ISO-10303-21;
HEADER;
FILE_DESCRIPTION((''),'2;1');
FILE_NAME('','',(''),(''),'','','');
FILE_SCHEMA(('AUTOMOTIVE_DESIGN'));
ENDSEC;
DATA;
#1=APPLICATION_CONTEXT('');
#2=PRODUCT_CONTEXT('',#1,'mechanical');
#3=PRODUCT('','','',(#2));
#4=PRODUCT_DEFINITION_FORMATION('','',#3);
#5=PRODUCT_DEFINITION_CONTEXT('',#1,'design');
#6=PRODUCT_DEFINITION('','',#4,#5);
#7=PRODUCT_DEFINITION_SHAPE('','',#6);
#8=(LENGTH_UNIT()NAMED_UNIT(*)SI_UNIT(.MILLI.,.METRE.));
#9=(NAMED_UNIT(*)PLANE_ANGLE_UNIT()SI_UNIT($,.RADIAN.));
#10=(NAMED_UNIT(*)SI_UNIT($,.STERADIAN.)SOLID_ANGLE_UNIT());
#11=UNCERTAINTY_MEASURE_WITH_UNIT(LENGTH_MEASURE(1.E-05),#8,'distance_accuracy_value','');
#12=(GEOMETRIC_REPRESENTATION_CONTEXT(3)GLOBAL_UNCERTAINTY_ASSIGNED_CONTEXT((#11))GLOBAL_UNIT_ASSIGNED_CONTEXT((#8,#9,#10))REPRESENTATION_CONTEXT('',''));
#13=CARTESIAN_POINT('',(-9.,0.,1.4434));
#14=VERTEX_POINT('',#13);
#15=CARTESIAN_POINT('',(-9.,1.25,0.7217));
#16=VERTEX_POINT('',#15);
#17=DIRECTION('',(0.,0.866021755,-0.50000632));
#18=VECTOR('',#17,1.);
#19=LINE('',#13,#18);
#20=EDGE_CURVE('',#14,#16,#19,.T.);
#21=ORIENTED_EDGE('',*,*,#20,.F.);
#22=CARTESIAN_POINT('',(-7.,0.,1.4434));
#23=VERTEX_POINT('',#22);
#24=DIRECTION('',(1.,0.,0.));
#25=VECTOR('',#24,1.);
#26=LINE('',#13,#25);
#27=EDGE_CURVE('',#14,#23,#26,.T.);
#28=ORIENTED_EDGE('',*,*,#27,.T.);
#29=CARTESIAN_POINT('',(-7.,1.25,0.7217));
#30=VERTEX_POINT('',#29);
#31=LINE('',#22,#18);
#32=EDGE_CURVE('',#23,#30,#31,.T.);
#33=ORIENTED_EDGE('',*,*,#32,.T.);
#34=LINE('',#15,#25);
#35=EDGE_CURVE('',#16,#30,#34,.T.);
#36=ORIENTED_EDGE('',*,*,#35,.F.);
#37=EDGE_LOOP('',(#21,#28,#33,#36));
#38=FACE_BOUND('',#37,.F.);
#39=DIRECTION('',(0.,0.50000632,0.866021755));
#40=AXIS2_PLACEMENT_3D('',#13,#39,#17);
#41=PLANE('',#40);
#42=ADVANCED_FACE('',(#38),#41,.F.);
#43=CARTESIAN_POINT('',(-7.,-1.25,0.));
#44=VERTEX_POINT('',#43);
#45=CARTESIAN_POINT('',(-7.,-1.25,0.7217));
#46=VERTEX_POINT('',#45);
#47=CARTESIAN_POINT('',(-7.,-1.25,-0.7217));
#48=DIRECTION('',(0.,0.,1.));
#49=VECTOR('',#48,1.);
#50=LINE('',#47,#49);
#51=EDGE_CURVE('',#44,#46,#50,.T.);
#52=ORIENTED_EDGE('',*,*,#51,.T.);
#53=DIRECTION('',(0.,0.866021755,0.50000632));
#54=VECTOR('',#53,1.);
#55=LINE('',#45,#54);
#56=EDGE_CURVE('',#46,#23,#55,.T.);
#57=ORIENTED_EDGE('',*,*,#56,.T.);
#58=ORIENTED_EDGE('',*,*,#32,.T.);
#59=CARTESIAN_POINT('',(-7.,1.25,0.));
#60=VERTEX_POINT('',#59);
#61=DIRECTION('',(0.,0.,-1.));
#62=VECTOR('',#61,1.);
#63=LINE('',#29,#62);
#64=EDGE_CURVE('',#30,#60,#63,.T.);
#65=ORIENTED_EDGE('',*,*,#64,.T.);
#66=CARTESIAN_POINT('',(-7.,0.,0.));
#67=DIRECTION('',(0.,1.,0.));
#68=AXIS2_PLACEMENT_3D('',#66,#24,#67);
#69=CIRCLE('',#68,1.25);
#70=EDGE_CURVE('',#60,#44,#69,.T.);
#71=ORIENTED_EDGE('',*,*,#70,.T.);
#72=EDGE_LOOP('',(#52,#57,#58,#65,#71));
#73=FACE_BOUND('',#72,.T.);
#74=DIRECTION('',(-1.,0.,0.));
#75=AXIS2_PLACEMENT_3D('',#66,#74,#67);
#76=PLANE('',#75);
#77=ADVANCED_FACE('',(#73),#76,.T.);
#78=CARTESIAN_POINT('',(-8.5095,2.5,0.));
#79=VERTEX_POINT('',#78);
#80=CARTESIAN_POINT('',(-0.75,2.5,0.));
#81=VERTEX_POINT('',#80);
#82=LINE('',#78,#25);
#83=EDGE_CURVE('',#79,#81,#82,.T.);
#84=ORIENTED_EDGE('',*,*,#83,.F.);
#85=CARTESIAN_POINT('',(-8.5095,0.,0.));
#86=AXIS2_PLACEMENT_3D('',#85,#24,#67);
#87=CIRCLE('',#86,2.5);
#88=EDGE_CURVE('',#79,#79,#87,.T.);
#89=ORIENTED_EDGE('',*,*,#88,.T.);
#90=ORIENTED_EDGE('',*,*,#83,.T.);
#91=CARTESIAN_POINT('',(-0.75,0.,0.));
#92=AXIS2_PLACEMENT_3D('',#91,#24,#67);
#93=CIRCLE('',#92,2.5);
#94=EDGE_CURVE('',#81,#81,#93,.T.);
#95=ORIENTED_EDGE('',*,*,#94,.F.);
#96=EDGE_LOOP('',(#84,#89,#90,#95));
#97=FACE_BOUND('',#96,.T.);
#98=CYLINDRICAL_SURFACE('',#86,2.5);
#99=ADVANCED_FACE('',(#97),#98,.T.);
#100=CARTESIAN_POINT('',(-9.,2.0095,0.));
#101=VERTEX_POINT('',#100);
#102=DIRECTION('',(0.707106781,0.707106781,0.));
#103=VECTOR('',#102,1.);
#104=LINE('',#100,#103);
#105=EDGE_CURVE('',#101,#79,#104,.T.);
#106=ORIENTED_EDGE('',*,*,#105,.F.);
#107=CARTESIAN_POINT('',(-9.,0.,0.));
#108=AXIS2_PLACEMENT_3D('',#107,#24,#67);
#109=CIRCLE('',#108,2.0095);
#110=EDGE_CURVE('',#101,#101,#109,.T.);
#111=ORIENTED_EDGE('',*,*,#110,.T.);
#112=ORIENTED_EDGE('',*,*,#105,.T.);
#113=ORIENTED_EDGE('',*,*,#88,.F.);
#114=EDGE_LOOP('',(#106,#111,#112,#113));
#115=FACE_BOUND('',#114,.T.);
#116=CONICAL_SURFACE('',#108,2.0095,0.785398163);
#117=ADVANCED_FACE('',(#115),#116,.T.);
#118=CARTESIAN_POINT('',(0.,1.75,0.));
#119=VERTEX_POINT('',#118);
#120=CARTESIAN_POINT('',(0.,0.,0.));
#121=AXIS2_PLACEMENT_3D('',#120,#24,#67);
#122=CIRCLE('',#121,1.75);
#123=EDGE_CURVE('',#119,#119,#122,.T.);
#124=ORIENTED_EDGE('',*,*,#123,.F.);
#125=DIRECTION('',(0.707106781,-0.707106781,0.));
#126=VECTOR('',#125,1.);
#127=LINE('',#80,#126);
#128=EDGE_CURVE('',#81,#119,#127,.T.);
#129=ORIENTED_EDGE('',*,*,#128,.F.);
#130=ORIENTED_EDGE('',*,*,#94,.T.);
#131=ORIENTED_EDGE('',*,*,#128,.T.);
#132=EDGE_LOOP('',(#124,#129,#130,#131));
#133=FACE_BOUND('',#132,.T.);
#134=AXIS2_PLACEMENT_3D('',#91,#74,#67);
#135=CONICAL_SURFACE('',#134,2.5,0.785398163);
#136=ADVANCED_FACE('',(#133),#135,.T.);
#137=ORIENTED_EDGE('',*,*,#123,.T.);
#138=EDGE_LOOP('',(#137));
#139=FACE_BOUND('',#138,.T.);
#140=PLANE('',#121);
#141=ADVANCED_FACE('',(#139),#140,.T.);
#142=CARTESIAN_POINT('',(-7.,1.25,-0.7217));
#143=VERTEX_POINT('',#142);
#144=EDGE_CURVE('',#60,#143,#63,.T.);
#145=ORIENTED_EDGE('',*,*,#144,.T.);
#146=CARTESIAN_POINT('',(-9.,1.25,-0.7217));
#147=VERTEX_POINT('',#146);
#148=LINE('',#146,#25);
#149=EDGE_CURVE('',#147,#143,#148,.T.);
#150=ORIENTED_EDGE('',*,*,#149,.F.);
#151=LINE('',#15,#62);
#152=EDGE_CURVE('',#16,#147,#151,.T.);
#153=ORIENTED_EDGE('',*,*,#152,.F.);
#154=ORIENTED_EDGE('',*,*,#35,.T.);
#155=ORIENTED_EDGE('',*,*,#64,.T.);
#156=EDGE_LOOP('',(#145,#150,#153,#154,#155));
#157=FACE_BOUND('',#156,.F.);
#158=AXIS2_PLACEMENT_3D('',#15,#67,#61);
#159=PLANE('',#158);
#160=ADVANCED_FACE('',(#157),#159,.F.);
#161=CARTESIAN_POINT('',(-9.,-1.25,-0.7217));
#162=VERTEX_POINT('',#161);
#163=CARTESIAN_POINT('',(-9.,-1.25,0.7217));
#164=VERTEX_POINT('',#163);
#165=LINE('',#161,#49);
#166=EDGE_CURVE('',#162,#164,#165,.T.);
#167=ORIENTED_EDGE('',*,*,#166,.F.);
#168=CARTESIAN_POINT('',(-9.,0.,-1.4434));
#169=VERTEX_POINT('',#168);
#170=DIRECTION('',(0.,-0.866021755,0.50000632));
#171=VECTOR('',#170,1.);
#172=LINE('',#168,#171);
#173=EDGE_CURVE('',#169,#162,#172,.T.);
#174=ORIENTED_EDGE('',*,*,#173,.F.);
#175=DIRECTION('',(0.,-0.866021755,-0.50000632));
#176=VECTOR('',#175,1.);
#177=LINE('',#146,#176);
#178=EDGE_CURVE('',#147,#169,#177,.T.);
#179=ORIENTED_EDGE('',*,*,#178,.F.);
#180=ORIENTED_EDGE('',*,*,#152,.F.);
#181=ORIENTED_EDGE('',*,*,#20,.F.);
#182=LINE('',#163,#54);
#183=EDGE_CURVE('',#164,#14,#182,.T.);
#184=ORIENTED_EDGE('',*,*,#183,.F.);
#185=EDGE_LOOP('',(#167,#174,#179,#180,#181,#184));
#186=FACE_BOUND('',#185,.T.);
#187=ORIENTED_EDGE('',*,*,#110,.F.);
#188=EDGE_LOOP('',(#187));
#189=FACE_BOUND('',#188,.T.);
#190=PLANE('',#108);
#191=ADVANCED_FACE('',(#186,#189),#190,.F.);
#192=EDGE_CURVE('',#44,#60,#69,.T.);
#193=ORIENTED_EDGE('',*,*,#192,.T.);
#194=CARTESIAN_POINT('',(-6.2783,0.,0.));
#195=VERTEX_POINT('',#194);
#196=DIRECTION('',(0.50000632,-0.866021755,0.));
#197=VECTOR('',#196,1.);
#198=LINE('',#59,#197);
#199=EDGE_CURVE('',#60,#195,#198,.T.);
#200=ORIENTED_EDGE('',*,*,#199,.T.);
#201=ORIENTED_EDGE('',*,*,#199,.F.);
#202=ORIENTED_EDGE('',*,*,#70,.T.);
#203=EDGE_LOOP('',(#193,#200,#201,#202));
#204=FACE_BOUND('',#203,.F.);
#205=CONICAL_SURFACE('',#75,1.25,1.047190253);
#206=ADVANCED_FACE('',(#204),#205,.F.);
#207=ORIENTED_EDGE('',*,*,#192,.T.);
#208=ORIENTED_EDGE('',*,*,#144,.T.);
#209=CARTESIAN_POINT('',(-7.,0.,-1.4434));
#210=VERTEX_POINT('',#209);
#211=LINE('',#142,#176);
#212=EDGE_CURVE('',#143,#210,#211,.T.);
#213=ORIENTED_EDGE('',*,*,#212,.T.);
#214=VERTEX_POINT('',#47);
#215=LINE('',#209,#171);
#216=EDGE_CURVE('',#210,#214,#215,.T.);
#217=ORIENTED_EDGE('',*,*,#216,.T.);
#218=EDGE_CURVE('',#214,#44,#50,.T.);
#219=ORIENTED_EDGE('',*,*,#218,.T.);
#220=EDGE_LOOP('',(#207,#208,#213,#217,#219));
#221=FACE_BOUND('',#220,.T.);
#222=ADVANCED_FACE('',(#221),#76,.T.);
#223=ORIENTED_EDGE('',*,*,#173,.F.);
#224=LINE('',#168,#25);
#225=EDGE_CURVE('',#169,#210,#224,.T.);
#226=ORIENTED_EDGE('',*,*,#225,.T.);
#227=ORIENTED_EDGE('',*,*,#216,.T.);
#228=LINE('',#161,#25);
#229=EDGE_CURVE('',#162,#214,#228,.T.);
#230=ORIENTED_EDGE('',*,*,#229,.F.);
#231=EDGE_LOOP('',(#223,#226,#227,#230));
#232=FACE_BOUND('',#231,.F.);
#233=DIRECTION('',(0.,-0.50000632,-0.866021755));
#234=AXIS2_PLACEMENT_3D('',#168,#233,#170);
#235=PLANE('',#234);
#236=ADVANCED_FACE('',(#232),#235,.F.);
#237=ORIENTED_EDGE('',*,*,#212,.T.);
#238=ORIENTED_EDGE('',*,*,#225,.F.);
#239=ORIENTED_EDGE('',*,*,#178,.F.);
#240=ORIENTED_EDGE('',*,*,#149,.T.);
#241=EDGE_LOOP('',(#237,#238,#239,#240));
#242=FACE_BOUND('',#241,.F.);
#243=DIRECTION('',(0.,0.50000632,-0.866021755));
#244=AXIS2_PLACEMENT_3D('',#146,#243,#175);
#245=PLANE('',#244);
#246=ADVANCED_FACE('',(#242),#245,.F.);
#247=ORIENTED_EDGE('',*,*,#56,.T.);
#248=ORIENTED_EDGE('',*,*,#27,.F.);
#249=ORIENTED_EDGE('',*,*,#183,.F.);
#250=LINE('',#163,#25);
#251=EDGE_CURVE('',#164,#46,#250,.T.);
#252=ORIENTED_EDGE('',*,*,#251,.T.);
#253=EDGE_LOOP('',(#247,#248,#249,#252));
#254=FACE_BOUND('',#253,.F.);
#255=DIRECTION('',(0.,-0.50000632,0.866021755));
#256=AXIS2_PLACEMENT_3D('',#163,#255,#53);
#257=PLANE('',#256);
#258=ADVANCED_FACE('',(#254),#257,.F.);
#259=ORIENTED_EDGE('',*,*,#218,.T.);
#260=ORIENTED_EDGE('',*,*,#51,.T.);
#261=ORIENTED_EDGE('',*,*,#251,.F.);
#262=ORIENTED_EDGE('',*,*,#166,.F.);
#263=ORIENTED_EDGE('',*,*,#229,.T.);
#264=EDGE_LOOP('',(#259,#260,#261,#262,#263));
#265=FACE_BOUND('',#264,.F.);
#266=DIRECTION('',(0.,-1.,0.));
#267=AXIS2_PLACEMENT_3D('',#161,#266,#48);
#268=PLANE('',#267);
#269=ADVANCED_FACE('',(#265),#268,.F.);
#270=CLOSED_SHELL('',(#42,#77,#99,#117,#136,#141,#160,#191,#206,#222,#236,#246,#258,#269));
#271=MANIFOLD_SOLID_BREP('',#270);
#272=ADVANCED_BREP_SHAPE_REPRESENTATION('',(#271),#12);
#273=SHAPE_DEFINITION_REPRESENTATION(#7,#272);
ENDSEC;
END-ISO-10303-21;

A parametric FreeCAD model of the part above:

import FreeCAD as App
import Part
import Sketcher
from FreeCAD import Vector
Q = App.Units.Quantity

doc = App.newDocument("Part")
body = doc.addObject("PartDesign::Body", "Body")

sketch1 = body.newObject("Sketcher::SketchObject", "Sketch")
sketch1.AttachmentSupport = (doc.getObject("XY_Plane"), [""])
sketch1.MapMode = "FlatFace"
sketch1.addGeometry(Part.LineSegment(Vector(-9, 0, 0), Vector(0, 0, 0)), False)
sketch1.addGeometry(Part.LineSegment(Vector(0, 0, 0), Vector(0, 1.75, 0)), False)
sketch1.addGeometry(Part.LineSegment(Vector(0, 1.75, 0), Vector(-0.75, 2.5, 0)), False)
sketch1.addGeometry(Part.LineSegment(Vector(-0.75, 2.5, 0), Vector(-8.5095, 2.5, 0)), False)
sketch1.addGeometry(Part.LineSegment(Vector(-8.5095, 2.5, 0), Vector(-9, 2.0095, 0)), False)
sketch1.addGeometry(Part.LineSegment(Vector(-9, 2.0095, 0), Vector(-9, 0, 0)), False)
sketch1.addConstraint(Sketcher.Constraint("Coincident", 0, 2, 1, 1))
sketch1.addConstraint(Sketcher.Constraint("Coincident", 1, 2, 2, 1))
sketch1.addConstraint(Sketcher.Constraint("Coincident", 2, 2, 3, 1))
sketch1.addConstraint(Sketcher.Constraint("Coincident", 3, 2, 4, 1))
sketch1.addConstraint(Sketcher.Constraint("Coincident", 4, 2, 5, 1))
sketch1.addConstraint(Sketcher.Constraint("Coincident", 5, 2, 0, 1))
sketch1.addConstraint(Sketcher.Constraint("Horizontal", 0))
sketch1.addConstraint(Sketcher.Constraint("Vertical", 1))
sketch1.addConstraint(Sketcher.Constraint("Horizontal", 3))
sketch1.addConstraint(Sketcher.Constraint("Vertical", 5))
sketch1.addConstraint(Sketcher.Constraint("Coincident", 0, 2, -1, 1))
sketch1.addConstraint(Sketcher.Constraint("Perpendicular", 2, 4))
sketch1.addConstraint(Sketcher.Constraint("DistanceX", 0, 1, 0, 2, 9.0))
sketch1.addConstraint(Sketcher.Constraint("Angle", 2, Q("135 deg")))
sketch1.addConstraint(Sketcher.Constraint("DistanceY", 1, 1, 1, 2, 1.75))
sketch1.addConstraint(Sketcher.Constraint("DistanceY", -1, 1, 2, 2, 2.5))
sketch1.addConstraint(Sketcher.Constraint("DistanceX", 3, 2, 3, 1, 7.7595))
revolution = body.newObject("PartDesign::Revolution", "Revolution")
revolution.Profile = sketch1
revolution.ReferenceAxis = (sketch1, ["H_Axis"])
revolution.Angle = 360

sketch2 = body.newObject("Sketcher::SketchObject", "Sketch001")
sketch2.AttachmentSupport = (doc.getObject("YZ_Plane"), [""])
sketch2.MapMode = "FlatFace"
sketch2.AttachmentOffset = App.Placement(Vector(0, 0, -9), App.Rotation())
sketch2.addGeometry(Part.LineSegment(Vector(0, -1.4434, 0), Vector(-1.25, -0.7217, 0)), False)
sketch2.addGeometry(Part.LineSegment(Vector(-1.25, -0.7217, 0), Vector(-1.25, 0.7217, 0)), False)
sketch2.addGeometry(Part.LineSegment(Vector(-1.25, 0.7217, 0), Vector(0, 1.4434, 0)), False)
sketch2.addGeometry(Part.LineSegment(Vector(0, 1.4434, 0), Vector(1.25, 0.7217, 0)), False)
sketch2.addGeometry(Part.LineSegment(Vector(1.25, 0.7217, 0), Vector(1.25, -0.7217, 0)), False)
sketch2.addGeometry(Part.LineSegment(Vector(1.25, -0.7217, 0), Vector(0, -1.4434, 0)), False)
sketch2.addConstraint(Sketcher.Constraint("Coincident", 0, 2, 1, 1))
sketch2.addConstraint(Sketcher.Constraint("Coincident", 1, 2, 2, 1))
sketch2.addConstraint(Sketcher.Constraint("Coincident", 2, 2, 3, 1))
sketch2.addConstraint(Sketcher.Constraint("Coincident", 3, 2, 4, 1))
sketch2.addConstraint(Sketcher.Constraint("Coincident", 4, 2, 5, 1))
sketch2.addConstraint(Sketcher.Constraint("Coincident", 5, 2, 0, 1))
sketch2.addConstraint(Sketcher.Constraint("Vertical", 1))
sketch2.addConstraint(Sketcher.Constraint("Vertical", 4))
sketch2.addConstraint(Sketcher.Constraint("Symmetric", 0, 2, 3, 2, -1, 1))
sketch2.addConstraint(Sketcher.Constraint("Symmetric", 2, 2, 5, 2, -1, 1))
sketch2.addConstraint(Sketcher.Constraint("PointOnObject", 2, 2, -2))
sketch2.addConstraint(Sketcher.Constraint("Parallel", 2, 5))
sketch2.addConstraint(Sketcher.Constraint("Horizontal", 1, 2, 3, 2))
sketch2.addConstraint(Sketcher.Constraint("Angle", 0, Q("149.9996 deg")))
sketch2.addConstraint(Sketcher.Constraint("DistanceX", 1, 2, 3, 2, 2.5))
sketch2.addConstraint(Sketcher.Constraint("DistanceY", 1, 1, 1, 2, 1.4434))
pocket1 = body.newObject("PartDesign::Pocket", "Pocket")
pocket1.Profile = sketch2
pocket1.Length = 2
pocket1.Reversed = True

sketch3 = body.newObject("Sketcher::SketchObject", "Sketch002")
sketch3.AttachmentSupport = (doc.getObject("XY_Plane"), [""])
sketch3.MapMode = "FlatFace"
sketch3.addGeometry(Part.LineSegment(Vector(-7, 0, 0), Vector(-6.2783, 0, 0)), False)
sketch3.addGeometry(Part.LineSegment(Vector(-6.2783, 0, 0), Vector(-7, 1.25, 0)), False)
sketch3.addGeometry(Part.LineSegment(Vector(-7, 1.25, 0), Vector(-7, 0, 0)), False)
sketch3.addConstraint(Sketcher.Constraint("Coincident", 0, 2, 1, 1))
sketch3.addConstraint(Sketcher.Constraint("Coincident", 1, 2, 2, 1))
sketch3.addConstraint(Sketcher.Constraint("Coincident", 2, 2, 0, 1))
sketch3.addConstraint(Sketcher.Constraint("Horizontal", 0))
sketch3.addConstraint(Sketcher.Constraint("Vertical", 2))
sketch3.addConstraint(Sketcher.Constraint("PointOnObject", 0, 2, -1))
sketch3.addConstraint(Sketcher.Constraint("Angle", 1, Q("120.0004 deg")))
sketch3.addConstraint(Sketcher.Constraint("DistanceX", 1, 2, -1, 1, 7.0))
sketch3.addConstraint(Sketcher.Constraint("DistanceY", 2, 2, 2, 1, 1.25))
groove = body.newObject("PartDesign::Groove", "Groove")
groove.Profile = sketch3
groove.ReferenceAxis = (sketch3, ["H_Axis"])
groove.Angle = 360

doc.recompute()
